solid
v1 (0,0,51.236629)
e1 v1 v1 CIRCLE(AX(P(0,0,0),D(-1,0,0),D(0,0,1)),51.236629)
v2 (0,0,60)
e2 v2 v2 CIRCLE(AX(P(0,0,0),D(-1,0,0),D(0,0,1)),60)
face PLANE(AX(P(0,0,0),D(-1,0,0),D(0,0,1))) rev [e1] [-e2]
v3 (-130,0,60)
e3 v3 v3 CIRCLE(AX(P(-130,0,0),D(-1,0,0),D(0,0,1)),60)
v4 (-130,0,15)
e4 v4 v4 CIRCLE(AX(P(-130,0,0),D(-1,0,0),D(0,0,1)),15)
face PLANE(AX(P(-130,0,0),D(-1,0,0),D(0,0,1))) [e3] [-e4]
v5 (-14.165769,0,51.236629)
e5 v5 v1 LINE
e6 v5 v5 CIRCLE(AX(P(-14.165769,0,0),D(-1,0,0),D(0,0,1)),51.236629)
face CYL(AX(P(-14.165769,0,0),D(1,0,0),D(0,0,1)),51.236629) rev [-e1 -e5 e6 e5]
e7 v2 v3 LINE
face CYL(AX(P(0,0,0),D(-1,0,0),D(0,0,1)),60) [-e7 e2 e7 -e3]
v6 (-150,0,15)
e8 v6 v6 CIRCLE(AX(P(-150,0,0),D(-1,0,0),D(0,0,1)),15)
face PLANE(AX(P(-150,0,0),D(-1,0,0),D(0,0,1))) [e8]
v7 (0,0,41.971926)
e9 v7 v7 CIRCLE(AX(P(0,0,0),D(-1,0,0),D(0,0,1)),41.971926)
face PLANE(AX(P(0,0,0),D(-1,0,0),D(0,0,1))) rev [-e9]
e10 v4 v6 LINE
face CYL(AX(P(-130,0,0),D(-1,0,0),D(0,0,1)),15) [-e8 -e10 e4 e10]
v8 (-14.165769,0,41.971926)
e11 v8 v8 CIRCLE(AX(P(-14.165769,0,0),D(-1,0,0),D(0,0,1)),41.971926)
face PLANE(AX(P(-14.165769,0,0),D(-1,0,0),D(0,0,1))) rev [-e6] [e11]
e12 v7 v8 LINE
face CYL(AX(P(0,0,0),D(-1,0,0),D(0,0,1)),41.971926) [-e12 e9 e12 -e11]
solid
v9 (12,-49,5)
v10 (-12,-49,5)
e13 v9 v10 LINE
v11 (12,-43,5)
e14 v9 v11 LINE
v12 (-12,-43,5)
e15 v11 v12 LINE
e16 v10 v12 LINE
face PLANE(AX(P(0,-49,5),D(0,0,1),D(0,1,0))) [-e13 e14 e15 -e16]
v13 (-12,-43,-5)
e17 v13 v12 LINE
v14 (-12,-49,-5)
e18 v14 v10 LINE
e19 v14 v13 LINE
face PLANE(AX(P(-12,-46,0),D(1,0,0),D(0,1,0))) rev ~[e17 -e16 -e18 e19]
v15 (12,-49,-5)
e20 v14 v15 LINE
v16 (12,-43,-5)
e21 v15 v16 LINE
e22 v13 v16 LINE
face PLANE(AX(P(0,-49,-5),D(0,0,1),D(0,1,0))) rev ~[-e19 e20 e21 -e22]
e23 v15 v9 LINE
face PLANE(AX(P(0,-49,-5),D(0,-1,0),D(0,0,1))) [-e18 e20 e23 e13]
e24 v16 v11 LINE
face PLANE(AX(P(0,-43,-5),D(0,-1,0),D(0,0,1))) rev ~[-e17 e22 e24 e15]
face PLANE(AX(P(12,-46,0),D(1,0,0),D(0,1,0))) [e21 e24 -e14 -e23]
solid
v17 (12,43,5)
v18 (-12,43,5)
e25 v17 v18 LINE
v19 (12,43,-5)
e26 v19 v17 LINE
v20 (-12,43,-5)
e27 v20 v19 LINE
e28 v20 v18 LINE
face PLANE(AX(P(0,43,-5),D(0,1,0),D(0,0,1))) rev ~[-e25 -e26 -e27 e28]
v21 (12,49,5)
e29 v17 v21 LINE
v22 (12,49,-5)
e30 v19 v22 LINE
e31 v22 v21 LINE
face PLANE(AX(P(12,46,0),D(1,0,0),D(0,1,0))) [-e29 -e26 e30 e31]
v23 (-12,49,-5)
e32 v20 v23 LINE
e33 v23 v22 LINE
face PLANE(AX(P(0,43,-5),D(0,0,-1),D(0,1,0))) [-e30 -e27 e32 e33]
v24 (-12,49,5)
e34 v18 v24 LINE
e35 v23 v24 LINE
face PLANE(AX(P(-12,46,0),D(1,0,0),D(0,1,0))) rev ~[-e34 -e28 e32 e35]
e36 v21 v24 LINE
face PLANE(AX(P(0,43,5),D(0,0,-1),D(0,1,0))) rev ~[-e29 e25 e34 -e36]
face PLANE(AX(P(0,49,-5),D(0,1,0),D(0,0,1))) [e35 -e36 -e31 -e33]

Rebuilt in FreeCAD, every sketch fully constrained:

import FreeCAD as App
import Part
import Sketcher

doc = App.newDocument("Part")
params = doc.addObject("Spreadsheet::Sheet", "Params")
for row, (alias, value) in enumerate([
    ("sketch1_width", "150 mm"),
    ("sketch1_width2", "130 mm"),
    ("sketch1_height", "45 mm"),
    ("sketch1_height2", "15 mm"),
    ("revolution_angle", "360 deg"),
    ("sketch2_width", "6 mm"),
    ("sketch2_height", "10 mm"),
    ("pad1_length", "24 mm"),
], start=1):
    params.set(f"A{row}", alias)
    params.set(f"B{row}", "=" + value)
    params.setAlias(f"B{row}", alias)

body = doc.addObject("PartDesign::Body", "Body")

sketch1 = body.newObject("Sketcher::SketchObject", "Sketch")
sketch1.AttachmentSupport = (doc.getObject("XZ_Plane"), [""])
sketch1.MapMode = "FlatFace"
sketch1.addGeometry([
    Part.LineSegment(App.Vector(-150, 0, 0), App.Vector(0, 0, 0)),
    Part.LineSegment(App.Vector(0, 0, 0), App.Vector(0, 42, 0)),
    Part.LineSegment(App.Vector(0, 42, 0), App.Vector(-14, 42, 0)),
    Part.LineSegment(App.Vector(-14, 42, 0), App.Vector(-14, 51, 0)),
    Part.LineSegment(App.Vector(-14, 51, 0), App.Vector(0, 51, 0)),
    Part.LineSegment(App.Vector(0, 51, 0), App.Vector(0, 60, 0)),
    Part.LineSegment(App.Vector(0, 60, 0), App.Vector(-130, 60, 0)),
    Part.LineSegment(App.Vector(-130, 60, 0), App.Vector(-130, 15, 0)),
    Part.LineSegment(App.Vector(-130, 15, 0), App.Vector(-150, 15, 0)),
    Part.LineSegment(App.Vector(-150, 15, 0), App.Vector(-150, 0, 0)),
], False)
sketch1.addConstraint([
    Sketcher.Constraint("Coincident", 0, 2, 1, 1),
    Sketcher.Constraint("Coincident", 1, 2, 2, 1),
    Sketcher.Constraint("Coincident", 2, 2, 3, 1),
    Sketcher.Constraint("Coincident", 3, 2, 4, 1),
    Sketcher.Constraint("Coincident", 4, 2, 5, 1),
    Sketcher.Constraint("Coincident", 5, 2, 6, 1),
    Sketcher.Constraint("Coincident", 6, 2, 7, 1),
    Sketcher.Constraint("Coincident", 7, 2, 8, 1),
    Sketcher.Constraint("Coincident", 8, 2, 9, 1),
    Sketcher.Constraint("Coincident", 9, 2, 0, 1),
    Sketcher.Constraint("Horizontal", 0),
    Sketcher.Constraint("Vertical", 1),
    Sketcher.Constraint("Horizontal", 2),
    Sketcher.Constraint("Vertical", 3),
    Sketcher.Constraint("Horizontal", 4),
    Sketcher.Constraint("Vertical", 5),
    Sketcher.Constraint("Horizontal", 6),
    Sketcher.Constraint("Vertical", 7),
    Sketcher.Constraint("Horizontal", 8),
    Sketcher.Constraint("Vertical", 9),
    Sketcher.Constraint("Coincident", 0, 2, -1, 1),
    Sketcher.Constraint("PointOnObject", 4, 2, -2),
    Sketcher.Constraint("DistanceX", 0, 1, 0, 2, 150.0),
    Sketcher.Constraint("DistanceX", 6, 2, 6, 1, 130.0),
    Sketcher.Constraint("DistanceY", 7, 2, 7, 1, 45.0),
    Sketcher.Constraint("DistanceY", 9, 2, 9, 1, 15.0),
    Sketcher.Constraint("DistanceX", 2, 2, 2, 1, 14.165769),
    Sketcher.Constraint("DistanceY", 5, 1, 5, 2, 8.763371),
    Sketcher.Constraint("DistanceY", 1, 1, 1, 2, 41.971926),
])
sketch1.setExpression("Constraints[22]", "Params.sketch1_width")
sketch1.setExpression("Constraints[23]", "Params.sketch1_width2")
sketch1.setExpression("Constraints[24]", "Params.sketch1_height")
sketch1.setExpression("Constraints[25]", "Params.sketch1_height2")
revolution = body.newObject("PartDesign::Revolution", "Revolution")
revolution.Profile = sketch1
revolution.ReferenceAxis = (sketch1, ["H_Axis"])
revolution.setExpression("Angle", "Params.revolution_angle")
body2 = doc.addObject("PartDesign::Body", "Body001")
body2.AllowCompound = True

sketch2 = body2.newObject("Sketcher::SketchObject", "Sketch001")
sketch2.AttachmentSupport = (doc.getObject("YZ_Plane001"), [""])
sketch2.MapMode = "FlatFace"
sketch2.addGeometry([
    Part.LineSegment(App.Vector(-49, 5, 0), App.Vector(-49, -5, 0)),
    Part.LineSegment(App.Vector(-49, -5, 0), App.Vector(-43, -5, 0)),
    Part.LineSegment(App.Vector(-43, -5, 0), App.Vector(-43, 5, 0)),
    Part.LineSegment(App.Vector(-43, 5, 0), App.Vector(-49, 5, 0)),
    Part.LineSegment(App.Vector(43, 5, 0), App.Vector(43, -5, 0)),
    Part.LineSegment(App.Vector(43, -5, 0), App.Vector(49, -5, 0)),
    Part.LineSegment(App.Vector(49, -5, 0), App.Vector(49, 5, 0)),
    Part.LineSegment(App.Vector(49, 5, 0), App.Vector(43, 5, 0)),
], False)
sketch2.addConstraint([
    Sketcher.Constraint("Coincident", 0, 2, 1, 1),
    Sketcher.Constraint("Coincident", 1, 2, 2, 1),
    Sketcher.Constraint("Coincident", 2, 2, 3, 1),
    Sketcher.Constraint("Coincident", 3, 2, 0, 1),
    Sketcher.Constraint("Coincident", 4, 2, 5, 1),
    Sketcher.Constraint("Coincident", 5, 2, 6, 1),
    Sketcher.Constraint("Coincident", 6, 2, 7, 1),
    Sketcher.Constraint("Coincident", 7, 2, 4, 1),
    Sketcher.Constraint("Vertical", 0),
    Sketcher.Constraint("Horizontal", 1),
    Sketcher.Constraint("Vertical", 2),
    Sketcher.Constraint("Horizontal", 3),
    Sketcher.Constraint("Vertical", 4),
    Sketcher.Constraint("Horizontal", 5),
    Sketcher.Constraint("Vertical", 6),
    Sketcher.Constraint("Horizontal", 7),
    Sketcher.Constraint("Symmetric", 2, 2, 4, 2, -1, 1),
    Sketcher.Constraint("Symmetric", 0, 2, 6, 2, -1, 1),
    Sketcher.Constraint("Horizontal", 1, 2, 4, 2),
    Sketcher.Constraint("DistanceX", 1, 1, 1, 2, 6.0),
    Sketcher.Constraint("DistanceY", 0, 2, 0, 1, 10.0),
    Sketcher.Constraint("DistanceX", 0, 2, -1, 1, 49.0),
])
sketch2.setExpression("Constraints[19]", "Params.sketch2_width")
sketch2.setExpression("Constraints[20]", "Params.sketch2_height")
pad1 = body2.newObject("PartDesign::Pad", "Pad")
pad1.Profile = sketch2
pad1.setExpression("Length", "Params.pad1_length")
pad1.Midplane = True

doc.recompute()
